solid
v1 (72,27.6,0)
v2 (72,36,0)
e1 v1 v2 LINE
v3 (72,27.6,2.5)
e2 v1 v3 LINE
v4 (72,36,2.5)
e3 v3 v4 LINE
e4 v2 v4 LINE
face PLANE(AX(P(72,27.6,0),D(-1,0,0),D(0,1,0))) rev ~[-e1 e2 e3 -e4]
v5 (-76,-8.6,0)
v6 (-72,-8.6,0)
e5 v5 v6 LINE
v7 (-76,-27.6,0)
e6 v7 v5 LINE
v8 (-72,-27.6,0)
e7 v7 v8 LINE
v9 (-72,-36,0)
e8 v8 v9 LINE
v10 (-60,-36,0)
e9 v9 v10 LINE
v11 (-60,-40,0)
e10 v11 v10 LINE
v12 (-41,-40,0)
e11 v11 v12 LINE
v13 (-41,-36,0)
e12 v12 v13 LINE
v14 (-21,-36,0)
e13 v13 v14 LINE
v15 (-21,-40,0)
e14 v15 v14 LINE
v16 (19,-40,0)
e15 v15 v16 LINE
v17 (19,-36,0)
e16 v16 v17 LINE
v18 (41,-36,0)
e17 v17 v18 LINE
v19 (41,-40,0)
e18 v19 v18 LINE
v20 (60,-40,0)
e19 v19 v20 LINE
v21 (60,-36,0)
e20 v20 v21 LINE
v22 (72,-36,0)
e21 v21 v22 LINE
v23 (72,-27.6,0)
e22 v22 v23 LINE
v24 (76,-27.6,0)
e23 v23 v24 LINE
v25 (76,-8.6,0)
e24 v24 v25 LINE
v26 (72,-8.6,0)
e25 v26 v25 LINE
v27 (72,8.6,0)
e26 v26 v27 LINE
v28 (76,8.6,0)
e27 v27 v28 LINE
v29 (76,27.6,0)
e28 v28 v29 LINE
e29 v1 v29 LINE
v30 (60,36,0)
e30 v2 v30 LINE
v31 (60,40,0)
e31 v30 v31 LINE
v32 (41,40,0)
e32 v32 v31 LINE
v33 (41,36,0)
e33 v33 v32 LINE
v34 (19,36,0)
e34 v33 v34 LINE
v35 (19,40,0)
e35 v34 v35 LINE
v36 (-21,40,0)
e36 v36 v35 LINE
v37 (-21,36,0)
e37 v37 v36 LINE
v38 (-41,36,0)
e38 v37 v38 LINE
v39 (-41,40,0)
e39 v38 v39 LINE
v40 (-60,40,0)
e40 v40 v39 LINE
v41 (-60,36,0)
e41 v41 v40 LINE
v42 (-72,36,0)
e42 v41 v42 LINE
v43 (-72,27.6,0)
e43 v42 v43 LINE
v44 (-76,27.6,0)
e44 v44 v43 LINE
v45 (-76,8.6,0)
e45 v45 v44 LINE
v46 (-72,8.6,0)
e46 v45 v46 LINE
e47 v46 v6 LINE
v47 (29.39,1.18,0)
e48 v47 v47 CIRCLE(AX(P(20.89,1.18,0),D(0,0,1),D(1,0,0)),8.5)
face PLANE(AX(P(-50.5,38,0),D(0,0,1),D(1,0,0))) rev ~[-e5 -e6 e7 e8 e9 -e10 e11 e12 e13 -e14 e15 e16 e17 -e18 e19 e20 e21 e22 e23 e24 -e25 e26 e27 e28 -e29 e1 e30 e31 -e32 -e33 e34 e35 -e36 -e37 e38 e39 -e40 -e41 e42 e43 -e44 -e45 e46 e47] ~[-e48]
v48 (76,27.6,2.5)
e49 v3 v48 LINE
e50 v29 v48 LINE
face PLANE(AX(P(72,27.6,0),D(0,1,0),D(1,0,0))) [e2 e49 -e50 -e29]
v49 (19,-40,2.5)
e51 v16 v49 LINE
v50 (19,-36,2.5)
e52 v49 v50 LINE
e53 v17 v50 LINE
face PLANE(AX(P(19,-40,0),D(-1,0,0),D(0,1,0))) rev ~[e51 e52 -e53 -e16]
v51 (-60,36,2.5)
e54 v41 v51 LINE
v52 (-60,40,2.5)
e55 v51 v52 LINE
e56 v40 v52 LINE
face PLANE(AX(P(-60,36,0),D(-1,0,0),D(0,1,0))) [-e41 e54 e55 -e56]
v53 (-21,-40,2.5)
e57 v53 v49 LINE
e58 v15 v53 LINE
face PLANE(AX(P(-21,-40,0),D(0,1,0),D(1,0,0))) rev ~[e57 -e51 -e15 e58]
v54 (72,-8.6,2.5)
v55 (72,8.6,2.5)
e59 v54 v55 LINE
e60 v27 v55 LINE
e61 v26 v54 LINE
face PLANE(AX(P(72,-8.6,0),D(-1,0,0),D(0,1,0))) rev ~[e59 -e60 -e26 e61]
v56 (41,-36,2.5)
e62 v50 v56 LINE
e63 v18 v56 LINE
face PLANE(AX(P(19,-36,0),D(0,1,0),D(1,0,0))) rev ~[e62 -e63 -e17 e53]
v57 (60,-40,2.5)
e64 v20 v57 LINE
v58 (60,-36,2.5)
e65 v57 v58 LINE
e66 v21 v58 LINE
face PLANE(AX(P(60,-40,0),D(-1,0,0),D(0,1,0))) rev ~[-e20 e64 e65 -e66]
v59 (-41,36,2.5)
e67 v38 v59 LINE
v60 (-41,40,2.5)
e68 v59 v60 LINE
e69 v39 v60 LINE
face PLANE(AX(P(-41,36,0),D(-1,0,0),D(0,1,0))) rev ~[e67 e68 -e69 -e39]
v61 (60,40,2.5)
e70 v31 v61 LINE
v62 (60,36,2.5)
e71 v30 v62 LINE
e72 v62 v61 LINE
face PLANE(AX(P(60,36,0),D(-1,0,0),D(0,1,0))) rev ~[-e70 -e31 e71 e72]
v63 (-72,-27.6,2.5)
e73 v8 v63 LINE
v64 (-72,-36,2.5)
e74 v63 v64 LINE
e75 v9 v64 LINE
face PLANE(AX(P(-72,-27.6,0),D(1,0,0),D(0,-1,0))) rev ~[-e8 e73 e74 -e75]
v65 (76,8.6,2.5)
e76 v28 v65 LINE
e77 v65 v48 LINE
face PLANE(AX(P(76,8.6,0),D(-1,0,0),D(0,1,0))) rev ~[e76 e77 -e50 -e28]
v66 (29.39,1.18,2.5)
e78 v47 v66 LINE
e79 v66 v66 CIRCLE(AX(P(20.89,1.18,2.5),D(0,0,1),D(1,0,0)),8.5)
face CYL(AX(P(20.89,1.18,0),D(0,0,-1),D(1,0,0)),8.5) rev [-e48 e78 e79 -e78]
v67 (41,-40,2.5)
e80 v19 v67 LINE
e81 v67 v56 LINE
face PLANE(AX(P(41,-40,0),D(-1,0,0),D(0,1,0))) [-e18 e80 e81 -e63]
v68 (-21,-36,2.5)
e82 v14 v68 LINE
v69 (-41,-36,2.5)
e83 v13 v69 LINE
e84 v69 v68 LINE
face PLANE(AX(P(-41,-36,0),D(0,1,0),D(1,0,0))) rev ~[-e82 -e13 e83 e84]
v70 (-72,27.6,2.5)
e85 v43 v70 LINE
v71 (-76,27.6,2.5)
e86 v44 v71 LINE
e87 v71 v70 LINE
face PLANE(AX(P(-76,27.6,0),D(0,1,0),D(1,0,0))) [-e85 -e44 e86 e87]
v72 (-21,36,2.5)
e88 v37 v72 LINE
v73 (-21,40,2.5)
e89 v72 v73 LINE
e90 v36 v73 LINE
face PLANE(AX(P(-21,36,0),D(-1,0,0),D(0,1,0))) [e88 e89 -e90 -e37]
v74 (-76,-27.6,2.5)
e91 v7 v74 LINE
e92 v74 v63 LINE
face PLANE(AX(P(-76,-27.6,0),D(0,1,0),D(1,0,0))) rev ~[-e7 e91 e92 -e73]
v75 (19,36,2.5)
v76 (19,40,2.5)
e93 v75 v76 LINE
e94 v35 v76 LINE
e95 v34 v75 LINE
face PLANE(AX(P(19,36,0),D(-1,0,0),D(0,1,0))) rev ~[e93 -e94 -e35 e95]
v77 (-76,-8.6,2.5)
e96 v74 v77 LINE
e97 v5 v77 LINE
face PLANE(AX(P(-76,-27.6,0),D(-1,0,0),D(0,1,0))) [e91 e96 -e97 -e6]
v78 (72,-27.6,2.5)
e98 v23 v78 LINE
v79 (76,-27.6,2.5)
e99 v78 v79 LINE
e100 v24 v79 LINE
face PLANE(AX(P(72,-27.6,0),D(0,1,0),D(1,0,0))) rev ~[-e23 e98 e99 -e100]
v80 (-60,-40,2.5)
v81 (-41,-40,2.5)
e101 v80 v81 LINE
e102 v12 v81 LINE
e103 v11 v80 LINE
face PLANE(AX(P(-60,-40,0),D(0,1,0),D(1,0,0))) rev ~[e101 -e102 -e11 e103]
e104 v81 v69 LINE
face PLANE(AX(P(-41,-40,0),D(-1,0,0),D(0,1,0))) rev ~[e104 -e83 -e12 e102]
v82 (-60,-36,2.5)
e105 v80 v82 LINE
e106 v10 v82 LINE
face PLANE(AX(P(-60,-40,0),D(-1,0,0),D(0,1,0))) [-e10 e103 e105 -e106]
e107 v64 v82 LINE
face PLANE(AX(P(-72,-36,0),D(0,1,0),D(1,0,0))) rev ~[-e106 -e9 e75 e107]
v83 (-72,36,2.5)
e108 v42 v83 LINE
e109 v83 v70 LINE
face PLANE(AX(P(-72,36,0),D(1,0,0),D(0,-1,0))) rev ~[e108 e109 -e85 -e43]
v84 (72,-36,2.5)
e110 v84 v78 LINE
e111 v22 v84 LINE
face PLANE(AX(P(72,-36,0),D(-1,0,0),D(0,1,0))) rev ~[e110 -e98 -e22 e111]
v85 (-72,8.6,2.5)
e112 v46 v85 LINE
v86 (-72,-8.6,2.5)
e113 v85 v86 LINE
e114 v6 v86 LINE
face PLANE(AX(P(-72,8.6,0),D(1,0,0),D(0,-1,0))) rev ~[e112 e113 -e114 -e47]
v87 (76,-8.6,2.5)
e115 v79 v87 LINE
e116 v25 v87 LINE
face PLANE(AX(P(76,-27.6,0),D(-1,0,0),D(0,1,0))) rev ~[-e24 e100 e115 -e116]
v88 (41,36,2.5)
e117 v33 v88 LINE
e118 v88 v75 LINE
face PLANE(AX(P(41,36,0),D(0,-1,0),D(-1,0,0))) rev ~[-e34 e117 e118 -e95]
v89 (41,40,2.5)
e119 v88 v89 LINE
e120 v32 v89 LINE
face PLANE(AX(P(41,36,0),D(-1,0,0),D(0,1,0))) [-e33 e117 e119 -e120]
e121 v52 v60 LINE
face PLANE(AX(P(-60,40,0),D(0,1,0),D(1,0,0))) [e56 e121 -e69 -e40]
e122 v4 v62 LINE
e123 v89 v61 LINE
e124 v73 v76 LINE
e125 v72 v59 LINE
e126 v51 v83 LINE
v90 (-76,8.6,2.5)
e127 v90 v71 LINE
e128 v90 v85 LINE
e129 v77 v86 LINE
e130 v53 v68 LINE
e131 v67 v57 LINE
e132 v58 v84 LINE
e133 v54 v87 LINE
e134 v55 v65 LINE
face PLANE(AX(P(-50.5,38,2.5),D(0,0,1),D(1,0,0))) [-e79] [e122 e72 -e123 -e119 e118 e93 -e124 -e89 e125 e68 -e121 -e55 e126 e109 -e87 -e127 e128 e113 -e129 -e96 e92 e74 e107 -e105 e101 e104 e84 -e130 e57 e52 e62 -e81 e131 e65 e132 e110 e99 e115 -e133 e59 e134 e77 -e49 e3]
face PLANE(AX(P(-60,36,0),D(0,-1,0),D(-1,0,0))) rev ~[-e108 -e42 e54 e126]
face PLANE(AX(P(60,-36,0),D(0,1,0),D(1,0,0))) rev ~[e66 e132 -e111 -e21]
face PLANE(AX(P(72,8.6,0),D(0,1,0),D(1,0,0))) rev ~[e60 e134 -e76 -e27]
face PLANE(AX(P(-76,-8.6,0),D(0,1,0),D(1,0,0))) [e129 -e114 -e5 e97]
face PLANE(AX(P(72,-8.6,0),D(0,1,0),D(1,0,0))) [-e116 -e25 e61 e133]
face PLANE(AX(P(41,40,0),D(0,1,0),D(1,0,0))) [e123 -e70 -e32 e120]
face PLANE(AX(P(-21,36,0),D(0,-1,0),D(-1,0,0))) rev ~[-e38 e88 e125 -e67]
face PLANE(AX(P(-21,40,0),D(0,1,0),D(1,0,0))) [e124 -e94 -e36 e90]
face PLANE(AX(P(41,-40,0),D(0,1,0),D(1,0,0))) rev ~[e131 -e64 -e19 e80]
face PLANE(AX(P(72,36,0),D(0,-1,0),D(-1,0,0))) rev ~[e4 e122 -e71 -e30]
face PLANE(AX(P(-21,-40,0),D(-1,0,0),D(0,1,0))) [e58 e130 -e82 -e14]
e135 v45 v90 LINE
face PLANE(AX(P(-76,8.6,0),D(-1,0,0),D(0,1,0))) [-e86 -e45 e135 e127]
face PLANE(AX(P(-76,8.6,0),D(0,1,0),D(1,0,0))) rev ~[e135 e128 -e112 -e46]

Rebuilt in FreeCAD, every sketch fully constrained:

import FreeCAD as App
import Part
import Sketcher

V = App.Vector


def add_polygon(sketch, points):
    """Adds a closed chain of lines whose ends are joined by coincident constraints."""
    first, n = sketch.GeometryCount, len(points)
    for a, b in zip(points, points[1:] + points[:1]):
        sketch.addGeometry(Part.LineSegment(App.Vector(*a, 0), App.Vector(*b, 0)), False)
    for i in range(n):
        sketch.addConstraint(Sketcher.Constraint("Coincident", first + i, 2, first + (i + 1) % n, 1))

doc = App.newDocument("Part")
body = doc.addObject("PartDesign::Body", "Body")

# Sketch on XY plane
sketch1 = doc.addObject("Sketcher::SketchObject", "Sketch")
body.addObject(sketch1)
sketch1.AttachmentSupport = (doc.XY_Plane, [""])
sketch1.MapMode = "FlatFace"
add_polygon(sketch1, [(-60, 40), (-60, 36), (-72, 36), (-72, 27.6), (-76, 27.6), (-76, 8.6), (-72, 8.6), (-72, -8.6), (-76, -8.6), (-76, -27.6), (-72, -27.6), (-72, -36), (-60, -36), (-60, -40), (-41, -40), (-41, -36), (-21, -36), (-21, -40), (19, -40), (19, -36), (41, -36), (41, -40), (60, -40), (60, -36), (72, -36), (72, -27.6), (76, -27.6), (76, -8.6), (72, -8.6), (72, 8.6), (76, 8.6), (76, 27.6), (72, 27.6), (72, 36), (60, 36), (60, 40), (41, 40), (41, 36), (19, 36), (19, 40), (-21, 40), (-21, 36), (-41, 36), (-41, 40)])  # lines 0-43
sketch1.addGeometry(Part.Circle(V(20.89, 1.18, 0), V(0, 0, 1), 8.5), False)  # 44
sketch1.addConstraint([
    Sketcher.Constraint("Vertical", 0),
    Sketcher.Constraint("Horizontal", 1),
    Sketcher.Constraint("Vertical", 2),
    Sketcher.Constraint("Horizontal", 3),
    Sketcher.Constraint("Vertical", 4),
    Sketcher.Constraint("Horizontal", 5),
    Sketcher.Constraint("Vertical", 6),
    Sketcher.Constraint("Horizontal", 7),
    Sketcher.Constraint("Vertical", 8),
    Sketcher.Constraint("Horizontal", 9),
    Sketcher.Constraint("Vertical", 10),
    Sketcher.Constraint("Horizontal", 11),
    Sketcher.Constraint("Vertical", 12),
    Sketcher.Constraint("Horizontal", 13),
    Sketcher.Constraint("Vertical", 14),
    Sketcher.Constraint("Horizontal", 15),
    Sketcher.Constraint("Vertical", 16),
    Sketcher.Constraint("Horizontal", 17),
    Sketcher.Constraint("Vertical", 18),
    Sketcher.Constraint("Horizontal", 19),
    Sketcher.Constraint("Vertical", 20),
    Sketcher.Constraint("Horizontal", 21),
    Sketcher.Constraint("Vertical", 22),
    Sketcher.Constraint("Horizontal", 23),
    Sketcher.Constraint("Vertical", 24),
    Sketcher.Constraint("Horizontal", 25),
    Sketcher.Constraint("Vertical", 26),
    Sketcher.Constraint("Horizontal", 27),
    Sketcher.Constraint("Vertical", 28),
    Sketcher.Constraint("Horizontal", 29),
    Sketcher.Constraint("Vertical", 30),
    Sketcher.Constraint("Horizontal", 31),
    Sketcher.Constraint("Vertical", 32),
    Sketcher.Constraint("Horizontal", 33),
    Sketcher.Constraint("Vertical", 34),
    Sketcher.Constraint("Horizontal", 35),
    Sketcher.Constraint("Vertical", 36),
    Sketcher.Constraint("Horizontal", 37),
    Sketcher.Constraint("Vertical", 38),
    Sketcher.Constraint("Horizontal", 39),
    Sketcher.Constraint("Vertical", 40),
    Sketcher.Constraint("Horizontal", 41),
    Sketcher.Constraint("Vertical", 42),
    Sketcher.Constraint("Horizontal", 43),
    Sketcher.Constraint("Symmetric", 0, 2, 22, 2, -1, 1),
    Sketcher.Constraint("Symmetric", 2, 2, 24, 2, -1, 1),
    Sketcher.Constraint("Symmetric", 4, 2, 26, 2, -1, 1),
    Sketcher.Constraint("Symmetric", 6, 2, 28, 2, -1, 1),
    Sketcher.Constraint("Symmetric", 8, 2, 30, 2, -1, 1),
    Sketcher.Constraint("Symmetric", 10, 2, 32, 2, -1, 1),
    Sketcher.Constraint("Symmetric", 12, 2, 34, 2, -1, 1),
    Sketcher.Constraint("Symmetric", 14, 2, 36, 2, -1, 1),
    Sketcher.Constraint("Symmetric", 19, 2, 41, 2, -1, 1),
    Sketcher.Constraint("Symmetric", 14, 2, 19, 2, -2),
    Sketcher.Constraint("Symmetric", 12, 2, 21, 2, -2),
    Sketcher.Constraint("Symmetric", 10, 2, 23, 2, -2),
    Sketcher.Constraint("Symmetric", 8, 2, 25, 2, -2),
    Sketcher.Constraint("Symmetric", 17, 2, 38, 2, -1),
    Sketcher.Constraint("Horizontal", 11, 2, 14, 2),
    Sketcher.Constraint("Horizontal", 13, 2, 16, 2),
    Sketcher.Constraint("Horizontal", 7, 2, 26, 2),
    Sketcher.Constraint("Horizontal", 39, 2, 42, 2),
    Sketcher.Constraint("Vertical", 2, 2, 5, 2),
    Sketcher.Constraint("Vertical", 16, 2, 39, 2),
    Sketcher.Constraint("Equal", 31, 0),
    Sketcher.Constraint("Equal", 43, 4),
    Sketcher.Constraint("Diameter", 44, 17.0),
    Sketcher.Constraint("DistanceX", 1, 2, 1, 1, 12.0),
    Sketcher.Constraint("DistanceX", 3, 2, 3, 1, 4.0),
    Sketcher.Constraint("DistanceX", 13, 1, 13, 2, 19.0),
    Sketcher.Constraint("DistanceX", 15, 1, 15, 2, 20.0),
    Sketcher.Constraint("DistanceX", 17, 1, 17, 2, 40.0),
    Sketcher.Constraint("DistanceX", 19, 1, 19, 2, 22.0),
    Sketcher.Constraint("DistanceY", 2, 2, 2, 1, 8.4),
    Sketcher.Constraint("DistanceY", 6, 2, 6, 1, 17.2),
    Sketcher.Constraint("DistanceX", -1, 1, 44, 3, 20.89),
    Sketcher.Constraint("DistanceY", -1, 1, 44, 3, 1.18),
])
pad1 = doc.addObject("PartDesign::Pad", "Pad")
body.addObject(pad1)
pad1.Profile = sketch1
pad1.Length = 2.5

doc.recompute()
